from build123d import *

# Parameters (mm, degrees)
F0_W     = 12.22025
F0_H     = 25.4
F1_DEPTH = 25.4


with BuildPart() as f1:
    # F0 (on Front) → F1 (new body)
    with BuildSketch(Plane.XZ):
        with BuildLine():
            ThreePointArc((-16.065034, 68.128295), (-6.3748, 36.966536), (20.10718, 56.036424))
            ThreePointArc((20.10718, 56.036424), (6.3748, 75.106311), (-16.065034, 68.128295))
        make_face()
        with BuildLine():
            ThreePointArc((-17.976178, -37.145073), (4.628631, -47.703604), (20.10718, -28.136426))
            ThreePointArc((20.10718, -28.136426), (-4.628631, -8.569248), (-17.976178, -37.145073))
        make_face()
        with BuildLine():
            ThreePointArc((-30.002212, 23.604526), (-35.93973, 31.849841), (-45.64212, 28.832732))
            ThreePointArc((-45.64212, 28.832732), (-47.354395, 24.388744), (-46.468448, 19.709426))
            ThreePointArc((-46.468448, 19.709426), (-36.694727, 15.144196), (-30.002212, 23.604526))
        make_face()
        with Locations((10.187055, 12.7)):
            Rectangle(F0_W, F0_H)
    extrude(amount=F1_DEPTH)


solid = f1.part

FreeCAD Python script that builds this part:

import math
import FreeCAD as App
import Part
import Sketcher
from FreeCAD import Vector
Q = App.Units.Quantity

doc = App.newDocument("Part")
body = doc.addObject("PartDesign::Body", "Body")
body.AllowCompound = True

sketch1 = body.newObject("Sketcher::SketchObject", "Sketch")
sketch1.AttachmentSupport = (doc.getObject("XZ_Plane"), [""])
sketch1.MapMode = "FlatFace"
sketch1.addGeometry([
    Part.ArcOfCircle(Part.Circle(Vector(0, 56.036423, 0), Vector(0, 0, 1), 20.10718), math.radians(143.03186), math.radians(360.000002)),
    Part.ArcOfCircle(Part.Circle(Vector(0, 56.036424, 0), Vector(0, 0, 1), 20.10718), math.radians(0.000001), math.radians(143.031861)),
    Part.ArcOfCircle(Part.Circle(Vector(0, -28.136426, 0), Vector(0, 0, 1), 20.10718), math.radians(-153.382552), math.radians(-0.000001)),
    Part.ArcOfCircle(Part.Circle(Vector(0, -28.136426, 0), Vector(0, 0, 1), 20.10718), math.radians(0.000001), math.radians(206.617446)),
    Part.ArcOfCircle(Part.Circle(Vector(-38.696025, 23.604526, 0), Vector(0, 0, 1), 8.693813), math.radians(-0.000001), math.radians(143.031856)),
    Part.ArcOfCircle(Part.Circle(Vector(-38.696025, 23.604527, 0), Vector(0, 0, 1), 8.693812), math.radians(143.031856), math.radians(206.617449)),
    Part.ArcOfCircle(Part.Circle(Vector(-38.696024, 23.604526, 0), Vector(0, 0, 1), 8.693812), math.radians(-153.382557), math.radians(0.000001)),
    Part.LineSegment(Vector(4.07693, 25.4, 0), Vector(4.07693, 0, 0)),
    Part.LineSegment(Vector(4.07693, 0, 0), Vector(16.29718, 0, 0)),
    Part.LineSegment(Vector(16.29718, 0, 0), Vector(16.29718, 25.4, 0)),
    Part.LineSegment(Vector(16.29718, 25.4, 0), Vector(4.07693, 25.4, 0)),
], False)
sketch1.addConstraint([
    Sketcher.Constraint("Tangent", 0, 1, 1, 2),
    Sketcher.Constraint("Coincident", 1, 1, 0, 2),
    Sketcher.Constraint("Tangent", 2, 1, 3, 2),
    Sketcher.Constraint("Coincident", 3, 1, 2, 2),
    Sketcher.Constraint("Tangent", 4, 2, 5, 1),
    Sketcher.Constraint("Tangent", 5, 2, 6, 1),
    Sketcher.Constraint("Tangent", 6, 2, 4, 1),
    Sketcher.Constraint("Coincident", 7, 2, 8, 1),
    Sketcher.Constraint("Coincident", 8, 2, 9, 1),
    Sketcher.Constraint("Coincident", 9, 2, 10, 1),
    Sketcher.Constraint("Coincident", 10, 2, 7, 1),
    Sketcher.Constraint("Vertical", 7),
    Sketcher.Constraint("Horizontal", 8),
    Sketcher.Constraint("Vertical", 9),
    Sketcher.Constraint("Horizontal", 10),
    Sketcher.Constraint("Equal", 1, 2),
    Sketcher.Constraint("PointOnObject", 0, 3, -2),
    Sketcher.Constraint("PointOnObject", 2, 3, -2),
    Sketcher.Constraint("PointOnObject", 7, 2, -1),
    Sketcher.Constraint("Horizontal", 0, 3, 1, 1),
    Sketcher.Constraint("Horizontal", 2, 3, 3, 1),
    Sketcher.Constraint("Horizontal", 5, 3, 6, 2),
    Sketcher.Constraint("DistanceY", 7, 2, 7, 1, Q("1 in")),
    Sketcher.Constraint("DistanceX", 8, 2, 3, 1, Q("0.15 in")),
    Sketcher.Constraint("Radius", 0, Q("20.10718 mm")),
    Sketcher.Constraint("Radius", 5, Q("8.693812 mm")),
    Sketcher.Constraint("DistanceX", 8, 1, 8, 2, Q("12.22025 mm")),
    Sketcher.Constraint("DistanceY", 6, 3, 1, 1, Q("32.431898 mm")),
    Sketcher.Constraint("DistanceY", 2, 1, 6, 3, Q("60.749599 mm")),
    Sketcher.Constraint("DistanceY", 5, 2, 5, 3, Q("3.895101 mm")),
    Sketcher.Constraint("DistanceX", 4, 2, -1, 1, Q("45.64212 mm")),
    Sketcher.Constraint("DistanceX", 5, 2, -1, 1, Q("46.468448 mm")),
    Sketcher.Constraint("DistanceY", 2, 3, 0, 3, Q("84.172849 mm")),
    Sketcher.Constraint("DistanceY", 1, 3, 0, 1, Q("12.091871 mm")),
    Sketcher.Constraint("DistanceY", -1, 1, 0, 3, Q("56.036423 mm")),
])
pad1 = body.newObject("PartDesign::Pad", "Pad")
pad1.Profile = sketch1
pad1.Length = Q("1 in")

doc.recompute()
